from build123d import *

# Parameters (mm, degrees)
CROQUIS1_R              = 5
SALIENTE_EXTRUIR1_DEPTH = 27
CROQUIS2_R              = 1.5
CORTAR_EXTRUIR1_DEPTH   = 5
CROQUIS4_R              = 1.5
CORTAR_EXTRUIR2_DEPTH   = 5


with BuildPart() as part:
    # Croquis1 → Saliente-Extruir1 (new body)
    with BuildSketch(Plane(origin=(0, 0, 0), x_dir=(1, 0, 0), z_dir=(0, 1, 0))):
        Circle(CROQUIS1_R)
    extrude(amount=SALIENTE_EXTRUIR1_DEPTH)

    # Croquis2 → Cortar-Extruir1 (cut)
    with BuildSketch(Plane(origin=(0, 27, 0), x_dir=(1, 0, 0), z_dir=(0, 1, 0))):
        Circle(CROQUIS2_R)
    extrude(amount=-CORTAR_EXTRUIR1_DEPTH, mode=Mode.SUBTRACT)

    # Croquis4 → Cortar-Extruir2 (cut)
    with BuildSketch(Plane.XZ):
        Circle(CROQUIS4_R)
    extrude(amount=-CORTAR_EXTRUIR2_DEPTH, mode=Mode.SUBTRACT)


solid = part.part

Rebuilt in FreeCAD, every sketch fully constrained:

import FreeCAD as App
import Part
import Sketcher
Q = App.Units.Quantity

doc = App.newDocument("Part")
params = doc.addObject("Spreadsheet::Sheet", "Params")
for row, (alias, value) in enumerate([
    ("sketch1_diameter", "10 mm"),
    ("pad1_length", "27 mm"),
    ("sketch2_diameter", "3 mm"),
    ("pocket1_length", "5 mm"),
    ("sketch3_diameter", "3 mm"),
    ("pocket2_length", "5 mm"),
], start=1):
    params.set(f"A{row}", alias)
    params.set(f"B{row}", "=" + value)
    params.setAlias(f"B{row}", alias)

body = doc.addObject("PartDesign::Body", "Body")

# Sketch on XZ plane
sketch1 = doc.addObject("Sketcher::SketchObject", "Sketch")
body.addObject(sketch1)
sketch1.AttachmentSupport = (doc.XZ_Plane, [""])
sketch1.MapMode = "FlatFace"
sketch1.addGeometry(Part.Circle(App.Vector(0, 0, 0), App.Vector(0, 0, 1), 5), False)
sketch1.addConstraint(Sketcher.Constraint("Coincident", 0, 3, -1, 1))
sketch1.addConstraint(Sketcher.Constraint("Diameter", 0, Q("10 mm")))
sketch1.setExpression("Constraints[1]", "Params.sketch1_diameter")
pad1 = doc.addObject("PartDesign::Pad", "Pad")
body.addObject(pad1)
pad1.Profile = sketch1
pad1.setExpression("Length", "Params.pad1_length")
pad1.Reversed = True

# Sketch on XZ plane
sketch2 = doc.addObject("Sketcher::SketchObject", "Sketch001")
body.addObject(sketch2)
sketch2.AttachmentSupport = (doc.XZ_Plane, [""])
sketch2.MapMode = "FlatFace"
sketch2.AttachmentOffset = App.Placement(App.Vector(0, 0, -27), App.Rotation())
sketch2.addGeometry(Part.Circle(App.Vector(0, 0, 0), App.Vector(0, 0, 1), 1.5), False)
sketch2.addConstraint(Sketcher.Constraint("Coincident", 0, 3, -1, 1))
sketch2.addConstraint(Sketcher.Constraint("Diameter", 0, Q("3 mm")))
sketch2.setExpression("Constraints[1]", "Params.sketch2_diameter")
pocket1 = doc.addObject("PartDesign::Pocket", "Pocket")
body.addObject(pocket1)
pocket1.Profile = sketch2
pocket1.setExpression("Length", "Params.pocket1_length")
pocket1.Reversed = True

# Sketch on XZ plane
sketch3 = doc.addObject("Sketcher::SketchObject", "Sketch002")
body.addObject(sketch3)
sketch3.AttachmentSupport = (doc.XZ_Plane, [""])
sketch3.MapMode = "FlatFace"
sketch3.addGeometry(Part.Circle(App.Vector(0, 0, 0), App.Vector(0, 0, 1), 1.5), False)
sketch3.addConstraint(Sketcher.Constraint("Coincident", 0, 3, -1, 1))
sketch3.addConstraint(Sketcher.Constraint("Diameter", 0, Q("3 mm")))
sketch3.setExpression("Constraints[1]", "Params.sketch3_diameter")
pocket2 = doc.addObject("PartDesign::Pocket", "Pocket001")
body.addObject(pocket2)
pocket2.Profile = sketch3
pocket2.setExpression("Length", "Params.pocket2_length")

doc.recompute()
